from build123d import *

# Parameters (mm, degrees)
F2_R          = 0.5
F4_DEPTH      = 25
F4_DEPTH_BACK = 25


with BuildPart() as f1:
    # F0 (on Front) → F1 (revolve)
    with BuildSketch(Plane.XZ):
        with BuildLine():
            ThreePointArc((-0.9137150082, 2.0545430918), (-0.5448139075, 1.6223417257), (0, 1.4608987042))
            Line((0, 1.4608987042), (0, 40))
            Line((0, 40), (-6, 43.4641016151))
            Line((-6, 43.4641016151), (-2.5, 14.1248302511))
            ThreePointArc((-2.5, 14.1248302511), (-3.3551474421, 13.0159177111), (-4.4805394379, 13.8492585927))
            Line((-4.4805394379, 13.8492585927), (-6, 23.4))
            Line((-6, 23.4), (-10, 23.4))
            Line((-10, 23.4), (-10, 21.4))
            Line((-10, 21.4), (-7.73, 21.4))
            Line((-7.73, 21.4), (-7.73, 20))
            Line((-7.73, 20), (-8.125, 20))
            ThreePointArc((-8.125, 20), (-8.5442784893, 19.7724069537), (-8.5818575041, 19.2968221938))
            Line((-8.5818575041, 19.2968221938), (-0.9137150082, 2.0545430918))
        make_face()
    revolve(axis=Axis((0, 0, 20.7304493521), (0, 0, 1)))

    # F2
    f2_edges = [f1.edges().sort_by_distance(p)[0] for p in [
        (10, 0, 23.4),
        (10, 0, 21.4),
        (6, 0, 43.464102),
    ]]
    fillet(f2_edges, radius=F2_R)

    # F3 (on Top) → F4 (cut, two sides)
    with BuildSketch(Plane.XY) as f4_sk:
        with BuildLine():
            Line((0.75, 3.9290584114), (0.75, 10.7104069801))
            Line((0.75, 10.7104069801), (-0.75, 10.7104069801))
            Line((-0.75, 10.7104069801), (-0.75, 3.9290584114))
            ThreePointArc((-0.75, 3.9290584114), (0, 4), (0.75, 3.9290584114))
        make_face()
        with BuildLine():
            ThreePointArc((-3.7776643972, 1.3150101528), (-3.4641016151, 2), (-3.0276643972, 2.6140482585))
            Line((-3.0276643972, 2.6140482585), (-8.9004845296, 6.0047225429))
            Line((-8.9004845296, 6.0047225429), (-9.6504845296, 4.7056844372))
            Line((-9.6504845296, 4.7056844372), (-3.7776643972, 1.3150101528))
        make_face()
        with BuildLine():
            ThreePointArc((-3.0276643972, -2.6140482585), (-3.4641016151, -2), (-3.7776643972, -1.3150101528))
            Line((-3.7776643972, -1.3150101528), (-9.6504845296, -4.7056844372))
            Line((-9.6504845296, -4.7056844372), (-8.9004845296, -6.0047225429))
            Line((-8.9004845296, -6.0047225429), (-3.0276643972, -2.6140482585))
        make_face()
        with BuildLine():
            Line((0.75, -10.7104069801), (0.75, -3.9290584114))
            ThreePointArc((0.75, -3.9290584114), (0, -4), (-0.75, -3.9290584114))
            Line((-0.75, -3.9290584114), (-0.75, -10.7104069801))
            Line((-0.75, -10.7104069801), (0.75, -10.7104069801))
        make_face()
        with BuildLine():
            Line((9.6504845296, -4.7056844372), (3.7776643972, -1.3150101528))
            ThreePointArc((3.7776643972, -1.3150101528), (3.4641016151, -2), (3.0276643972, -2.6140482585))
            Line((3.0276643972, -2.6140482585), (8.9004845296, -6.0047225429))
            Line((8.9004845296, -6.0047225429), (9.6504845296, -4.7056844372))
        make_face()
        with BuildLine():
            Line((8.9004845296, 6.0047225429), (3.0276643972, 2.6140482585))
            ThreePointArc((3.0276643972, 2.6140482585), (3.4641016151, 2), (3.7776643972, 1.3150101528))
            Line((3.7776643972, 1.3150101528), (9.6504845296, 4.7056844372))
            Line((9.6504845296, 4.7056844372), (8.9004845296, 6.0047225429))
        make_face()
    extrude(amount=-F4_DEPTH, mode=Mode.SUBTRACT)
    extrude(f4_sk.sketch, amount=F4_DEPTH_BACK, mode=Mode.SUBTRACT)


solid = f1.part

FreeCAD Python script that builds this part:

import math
import FreeCAD as App
import Part
import Sketcher
Q = App.Units.Quantity


def edges_at(feature, points):
    """Names of the edges that pass closest to the given points."""
    edges = feature.Shape.Edges
    near = lambda p: min(range(len(edges)), key=lambda i: edges[i].distToShape(Part.Vertex(*p))[0])
    return sorted({f"Edge{near(p) + 1}" for p in points})

doc = App.newDocument("Part")
body = doc.addObject("PartDesign::Body", "Body")

# Sketch on XZ plane
sketch1 = body.newObject("Sketcher::SketchObject", "Sketch")
sketch1.AttachmentSupport = (doc.getObject("XZ_Plane"), [""])
sketch1.MapMode = "FlatFace"
sketch1.addGeometry(Part.ArcOfCircle(Part.Circle(App.Vector(0, 2.460899, 0), App.Vector(0, 0, 1), 1), math.radians(-156.023895), math.radians(-90)), False)
sketch1.addGeometry(Part.LineSegment(App.Vector(0, 1.460899, 0), App.Vector(0, 40, 0)), False)
sketch1.addGeometry(Part.LineSegment(App.Vector(0, 40, 0), App.Vector(-6, 43.464102, 0)), False)
sketch1.addGeometry(Part.LineSegment(App.Vector(-6, 43.464102, 0), App.Vector(-2.5, 14.12483, 0)), False)
sketch1.addGeometry(Part.ArcOfCircle(Part.Circle(App.Vector(-3.49296, 14.006376, 0), App.Vector(0, 0, 1), 1), math.radians(-170.960374), math.radians(6.802895)), False)
sketch1.addGeometry(Part.LineSegment(App.Vector(-4.480539, 13.849259, 0), App.Vector(-6, 23.4, 0)), False)
sketch1.addGeometry(Part.LineSegment(App.Vector(-6, 23.4, 0), App.Vector(-10, 23.4, 0)), False)
sketch1.addGeometry(Part.LineSegment(App.Vector(-10, 23.4, 0), App.Vector(-10, 21.4, 0)), False)
sketch1.addGeometry(Part.LineSegment(App.Vector(-10, 21.4, 0), App.Vector(-7.73, 21.4, 0)), False)
sketch1.addGeometry(Part.LineSegment(App.Vector(-7.73, 21.4, 0), App.Vector(-7.73, 20, 0)), False)
sketch1.addGeometry(Part.LineSegment(App.Vector(-7.73, 20, 0), App.Vector(-8.125, 20, 0)), False)
sketch1.addGeometry(Part.ArcOfCircle(Part.Circle(App.Vector(-8.125, 19.5, 0), App.Vector(0, 0, 1), 0.5), math.radians(90), math.radians(203.976105)), False)
sketch1.addGeometry(Part.LineSegment(App.Vector(-8.581858, 19.296822, 0), App.Vector(-0.913715, 2.054543, 0)), False)
sketch1.addConstraint(Sketcher.Constraint("Coincident", 0, 2, 1, 1))
sketch1.addConstraint(Sketcher.Constraint("Coincident", 1, 2, 2, 1))
sketch1.addConstraint(Sketcher.Constraint("Coincident", 2, 2, 3, 1))
sketch1.addConstraint(Sketcher.Constraint("Tangent", 3, 2, 4, 2))
sketch1.addConstraint(Sketcher.Constraint("Tangent", 4, 1, 5, 1))
sketch1.addConstraint(Sketcher.Constraint("Coincident", 5, 2, 6, 1))
sketch1.addConstraint(Sketcher.Constraint("Coincident", 6, 2, 7, 1))
sketch1.addConstraint(Sketcher.Constraint("Coincident", 7, 2, 8, 1))
sketch1.addConstraint(Sketcher.Constraint("Coincident", 8, 2, 9, 1))
sketch1.addConstraint(Sketcher.Constraint("Coincident", 9, 2, 10, 1))
sketch1.addConstraint(Sketcher.Constraint("Tangent", 10, 2, 11, 1))
sketch1.addConstraint(Sketcher.Constraint("Tangent", 11, 2, 12, 1))
sketch1.addConstraint(Sketcher.Constraint("Tangent", 12, 2, 0, 1))
sketch1.addConstraint(Sketcher.Constraint("Vertical", 1))
sketch1.addConstraint(Sketcher.Constraint("Horizontal", 6))
sketch1.addConstraint(Sketcher.Constraint("Vertical", 7))
sketch1.addConstraint(Sketcher.Constraint("Horizontal", 8))
sketch1.addConstraint(Sketcher.Constraint("Vertical", 9))
sketch1.addConstraint(Sketcher.Constraint("Horizontal", 10))
sketch1.addConstraint(Sketcher.Constraint("Equal", 0, 4))
sketch1.addConstraint(Sketcher.Constraint("PointOnObject", 0, 3, -2))
sketch1.addConstraint(Sketcher.Constraint("PointOnObject", 0, 2, -2))
sketch1.addConstraint(Sketcher.Constraint("Vertical", 2, 2, 5, 2))
sketch1.addConstraint(Sketcher.Constraint("Radius", 0, Q("1 mm")))
sketch1.addConstraint(Sketcher.Constraint("Radius", 11, Q("0.5 mm")))
sketch1.addConstraint(Sketcher.Constraint("DistanceX", 6, 2, 6, 1, Q("4 mm")))
sketch1.addConstraint(Sketcher.Constraint("DistanceY", 7, 2, 7, 1, Q("2 mm")))
sketch1.addConstraint(Sketcher.Constraint("Angle", 2, Q("150 deg")))
sketch1.addConstraint(Sketcher.Constraint("DistanceY", 9, 2, 9, 1, Q("1.4 mm")))
sketch1.addConstraint(Sketcher.Constraint("DistanceY", -1, 1, 1, 2, Q("40 mm")))
sketch1.addConstraint(Sketcher.Constraint("DistanceX", 2, 2, -1, 1, Q("6 mm")))
sketch1.addConstraint(Sketcher.Constraint("DistanceY", -1, 1, 9, 2, Q("20 mm")))
sketch1.addConstraint(Sketcher.Constraint("DistanceX", 8, 1, 8, 2, Q("2.27 mm")))
sketch1.addConstraint(Sketcher.Constraint("DistanceX", 3, 2, -1, 1, Q("2.5 mm")))
sketch1.addConstraint(Sketcher.Constraint("DistanceX", 10, 2, 10, 1, Q("0.395 mm")))
sketch1.addConstraint(Sketcher.Constraint("DistanceY", 1, 1, 1, 2, Q("38.539101 mm")))
sketch1.addConstraint(Sketcher.Constraint("Distance", 3, Q("29.547298 mm")))
revolution = body.newObject("PartDesign::Revolution", "Revolution")
revolution.Profile = sketch1
revolution.ReferenceAxis = (sketch1, ["V_Axis"])
revolution.Angle = 360
doc.recompute()

fillet = body.newObject("PartDesign::Fillet", "Fillet")
fillet.Base = (revolution, edges_at(revolution, [(10, 0, 23.4), (10, 0, 21.4), (6, 0, 43.464)]))
fillet.Radius = 0.5

# Sketch on XY plane
sketch2 = body.newObject("Sketcher::SketchObject", "Sketch001")
sketch2.AttachmentSupport = (doc.getObject("XY_Plane"), [""])
sketch2.MapMode = "FlatFace"
sketch2.addGeometry(Part.LineSegment(App.Vector(0.75, 3.929058, 0), App.Vector(0.75, 10.710407, 0)), False)
sketch2.addGeometry(Part.LineSegment(App.Vector(0.75, 10.710407, 0), App.Vector(-0.75, 10.710407, 0)), False)
sketch2.addGeometry(Part.LineSegment(App.Vector(-0.75, 10.710407, 0), App.Vector(-0.75, 3.929058, 0)), False)
sketch2.addGeometry(Part.ArcOfCircle(Part.Circle(App.Vector(0, 0, 0), App.Vector(0, 0, 1), 4), math.radians(79.193077), math.radians(100.806923)), False)
sketch2.addGeometry(Part.ArcOfCircle(Part.Circle(App.Vector(0, 0, 0), App.Vector(0, 0, 1), 4), math.radians(139.193077), math.radians(160.806923)), False)
sketch2.addGeometry(Part.LineSegment(App.Vector(-3.027664, 2.614048, 0), App.Vector(-8.900485, 6.004723, 0)), False)
sketch2.addGeometry(Part.LineSegment(App.Vector(-8.900485, 6.004723, 0), App.Vector(-9.650485, 4.705684, 0)), False)
sketch2.addGeometry(Part.LineSegment(App.Vector(-9.650485, 4.705684, 0), App.Vector(-3.777664, 1.31501, 0)), False)
sketch2.addGeometry(Part.ArcOfCircle(Part.Circle(App.Vector(0, 0, 0), App.Vector(0, 0, 1), 4), math.radians(-160.806923), math.radians(-139.193077)), False)
sketch2.addGeometry(Part.LineSegment(App.Vector(-3.777664, -1.31501, 0), App.Vector(-9.650485, -4.705684, 0)), False)
sketch2.addGeometry(Part.LineSegment(App.Vector(-9.650485, -4.705684, 0), App.Vector(-8.900485, -6.004723, 0)), False)
sketch2.addGeometry(Part.LineSegment(App.Vector(-8.900485, -6.004723, 0), App.Vector(-3.027664, -2.614048, 0)), False)
sketch2.addGeometry(Part.LineSegment(App.Vector(0.75, -10.710407, 0), App.Vector(0.75, -3.929058, 0)), False)
sketch2.addGeometry(Part.ArcOfCircle(Part.Circle(App.Vector(0, 0, 0), App.Vector(0, 0, 1), 4), math.radians(-100.806923), math.radians(-79.193077)), False)
sketch2.addGeometry(Part.LineSegment(App.Vector(-0.75, -3.929058, 0), App.Vector(-0.75, -10.710407, 0)), False)
sketch2.addGeometry(Part.LineSegment(App.Vector(-0.75, -10.710407, 0), App.Vector(0.75, -10.710407, 0)), False)
sketch2.addGeometry(Part.LineSegment(App.Vector(9.650485, -4.705684, 0), App.Vector(3.777664, -1.31501, 0)), False)
sketch2.addGeometry(Part.ArcOfCircle(Part.Circle(App.Vector(0, 0, 0), App.Vector(0, 0, 1), 4), math.radians(-40.806923), math.radians(-19.193077)), False)
sketch2.addGeometry(Part.LineSegment(App.Vector(3.027664, -2.614048, 0), App.Vector(8.900485, -6.004723, 0)), False)
sketch2.addGeometry(Part.LineSegment(App.Vector(8.900485, -6.004723, 0), App.Vector(9.650485, -4.705684, 0)), False)
sketch2.addGeometry(Part.LineSegment(App.Vector(8.900485, 6.004723, 0), App.Vector(3.027664, 2.614048, 0)), False)
sketch2.addGeometry(Part.ArcOfCircle(Part.Circle(App.Vector(0, 0, 0), App.Vector(0, 0, 1), 4), math.radians(19.193077), math.radians(40.806923)), False)
sketch2.addGeometry(Part.LineSegment(App.Vector(3.777664, 1.31501, 0), App.Vector(9.650485, 4.705684, 0)), False)
sketch2.addGeometry(Part.LineSegment(App.Vector(9.650485, 4.705684, 0), App.Vector(8.900485, 6.004723, 0)), False)
sketch2.addConstraint(Sketcher.Constraint("Coincident", 0, 2, 1, 1))
sketch2.addConstraint(Sketcher.Constraint("Coincident", 1, 2, 2, 1))
sketch2.addConstraint(Sketcher.Constraint("Coincident", 2, 2, 3, 2))
sketch2.addConstraint(Sketcher.Constraint("Coincident", 3, 1, 0, 1))
sketch2.addConstraint(Sketcher.Constraint("Coincident", 4, 1, 5, 1))
sketch2.addConstraint(Sketcher.Constraint("Coincident", 5, 2, 6, 1))
sketch2.addConstraint(Sketcher.Constraint("Coincident", 6, 2, 7, 1))
sketch2.addConstraint(Sketcher.Constraint("Coincident", 7, 2, 4, 2))
sketch2.addConstraint(Sketcher.Constraint("Coincident", 8, 1, 9, 1))
sketch2.addConstraint(Sketcher.Constraint("Coincident", 9, 2, 10, 1))
sketch2.addConstraint(Sketcher.Constraint("Coincident", 10, 2, 11, 1))
sketch2.addConstraint(Sketcher.Constraint("Coincident", 11, 2, 8, 2))
sketch2.addConstraint(Sketcher.Constraint("Coincident", 12, 2, 13, 2))
sketch2.addConstraint(Sketcher.Constraint("Coincident", 13, 1, 14, 1))
sketch2.addConstraint(Sketcher.Constraint("Coincident", 14, 2, 15, 1))
sketch2.addConstraint(Sketcher.Constraint("Coincident", 15, 2, 12, 1))
sketch2.addConstraint(Sketcher.Constraint("Coincident", 16, 2, 17, 2))
sketch2.addConstraint(Sketcher.Constraint("Coincident", 17, 1, 18, 1))
sketch2.addConstraint(Sketcher.Constraint("Coincident", 18, 2, 19, 1))
sketch2.addConstraint(Sketcher.Constraint("Coincident", 19, 2, 16, 1))
sketch2.addConstraint(Sketcher.Constraint("Coincident", 20, 2, 21, 2))
sketch2.addConstraint(Sketcher.Constraint("Coincident", 21, 1, 22, 1))
sketch2.addConstraint(Sketcher.Constraint("Coincident", 22, 2, 23, 1))
sketch2.addConstraint(Sketcher.Constraint("Coincident", 23, 2, 20, 1))
sketch2.addConstraint(Sketcher.Constraint("Vertical", 0))
sketch2.addConstraint(Sketcher.Constraint("Horizontal", 1))
sketch2.addConstraint(Sketcher.Constraint("Vertical", 2))
sketch2.addConstraint(Sketcher.Constraint("Vertical", 12))
sketch2.addConstraint(Sketcher.Constraint("Vertical", 14))
sketch2.addConstraint(Sketcher.Constraint("Horizontal", 15))
sketch2.addConstraint(Sketcher.Constraint("Coincident", 3, 3, -1, 1))
sketch2.addConstraint(Sketcher.Constraint("Coincident", 4, 3, -1, 1))
sketch2.addConstraint(Sketcher.Constraint("Coincident", 8, 3, -1, 1))
sketch2.addConstraint(Sketcher.Constraint("Coincident", 13, 3, -1, 1))
sketch2.addConstraint(Sketcher.Constraint("Coincident", 17, 3, -1, 1))
sketch2.addConstraint(Sketcher.Constraint("Coincident", 21, 3, -1, 1))
sketch2.addConstraint(Sketcher.Constraint("Equal", 3, 4))
sketch2.addConstraint(Sketcher.Constraint("Equal", 4, 8))
sketch2.addConstraint(Sketcher.Constraint("Equal", 8, 13))
sketch2.addConstraint(Sketcher.Constraint("Equal", 13, 17))
sketch2.addConstraint(Sketcher.Constraint("Equal", 17, 21))
sketch2.addConstraint(Sketcher.Constraint("Symmetric", 0, 2, 14, 2, -1, 1))
sketch2.addConstraint(Sketcher.Constraint("Symmetric", 5, 2, 18, 2, -1, 1))
sketch2.addConstraint(Sketcher.Constraint("Symmetric", 6, 2, 19, 2, -1, 1))
sketch2.addConstraint(Sketcher.Constraint("Symmetric", 9, 2, 22, 2, -1, 1))
sketch2.addConstraint(Sketcher.Constraint("Symmetric", 10, 2, 23, 2, -1, 1))
sketch2.addConstraint(Sketcher.Constraint("Symmetric", 10, 2, 18, 2, -2))
sketch2.addConstraint(Sketcher.Constraint("Symmetric", 9, 2, 19, 2, -2))
sketch2.addConstraint(Sketcher.Constraint("Perpendicular", 5, 6))
sketch2.addConstraint(Sketcher.Constraint("Perpendicular", 6, 7))
sketch2.addConstraint(Sketcher.Constraint("Perpendicular", 9, 10))
sketch2.addConstraint(Sketcher.Constraint("Perpendicular", 10, 11))
sketch2.addConstraint(Sketcher.Constraint("Parallel", 7, 16))
sketch2.addConstraint(Sketcher.Constraint("Parallel", 16, 18))
sketch2.addConstraint(Sketcher.Constraint("Parallel", 11, 20))
sketch2.addConstraint(Sketcher.Constraint("Parallel", 20, 22))
sketch2.addConstraint(Sketcher.Constraint("Horizontal", 2, 2, 3, 1))
sketch2.addConstraint(Sketcher.Constraint("Horizontal", 12, 2, 13, 1))
sketch2.addConstraint(Sketcher.Constraint("Equal", 5, 7))
sketch2.addConstraint(Sketcher.Constraint("Radius", 3, Q("4 mm")))
sketch2.addConstraint(Sketcher.Constraint("Angle", 5, Q("150 deg")))
sketch2.addConstraint(Sketcher.Constraint("DistanceX", 1, 2, 1, 1, Q("1.5 mm")))
sketch2.addConstraint(Sketcher.Constraint("Distance", 6, Q("1.5 mm")))
sketch2.addConstraint(Sketcher.Constraint("DistanceY", 0, 1, 0, 2, Q("6.781349 mm")))
sketch2.addConstraint(Sketcher.Constraint("Distance", 5, Q("6.781349 mm")))
pocket1 = body.newObject("PartDesign::Pocket", "Pocket")
pocket1.Profile = sketch2
pocket1.Type = "TwoLengths"
pocket1.Length = 25
pocket1.Length2 = 25

doc.recompute()
